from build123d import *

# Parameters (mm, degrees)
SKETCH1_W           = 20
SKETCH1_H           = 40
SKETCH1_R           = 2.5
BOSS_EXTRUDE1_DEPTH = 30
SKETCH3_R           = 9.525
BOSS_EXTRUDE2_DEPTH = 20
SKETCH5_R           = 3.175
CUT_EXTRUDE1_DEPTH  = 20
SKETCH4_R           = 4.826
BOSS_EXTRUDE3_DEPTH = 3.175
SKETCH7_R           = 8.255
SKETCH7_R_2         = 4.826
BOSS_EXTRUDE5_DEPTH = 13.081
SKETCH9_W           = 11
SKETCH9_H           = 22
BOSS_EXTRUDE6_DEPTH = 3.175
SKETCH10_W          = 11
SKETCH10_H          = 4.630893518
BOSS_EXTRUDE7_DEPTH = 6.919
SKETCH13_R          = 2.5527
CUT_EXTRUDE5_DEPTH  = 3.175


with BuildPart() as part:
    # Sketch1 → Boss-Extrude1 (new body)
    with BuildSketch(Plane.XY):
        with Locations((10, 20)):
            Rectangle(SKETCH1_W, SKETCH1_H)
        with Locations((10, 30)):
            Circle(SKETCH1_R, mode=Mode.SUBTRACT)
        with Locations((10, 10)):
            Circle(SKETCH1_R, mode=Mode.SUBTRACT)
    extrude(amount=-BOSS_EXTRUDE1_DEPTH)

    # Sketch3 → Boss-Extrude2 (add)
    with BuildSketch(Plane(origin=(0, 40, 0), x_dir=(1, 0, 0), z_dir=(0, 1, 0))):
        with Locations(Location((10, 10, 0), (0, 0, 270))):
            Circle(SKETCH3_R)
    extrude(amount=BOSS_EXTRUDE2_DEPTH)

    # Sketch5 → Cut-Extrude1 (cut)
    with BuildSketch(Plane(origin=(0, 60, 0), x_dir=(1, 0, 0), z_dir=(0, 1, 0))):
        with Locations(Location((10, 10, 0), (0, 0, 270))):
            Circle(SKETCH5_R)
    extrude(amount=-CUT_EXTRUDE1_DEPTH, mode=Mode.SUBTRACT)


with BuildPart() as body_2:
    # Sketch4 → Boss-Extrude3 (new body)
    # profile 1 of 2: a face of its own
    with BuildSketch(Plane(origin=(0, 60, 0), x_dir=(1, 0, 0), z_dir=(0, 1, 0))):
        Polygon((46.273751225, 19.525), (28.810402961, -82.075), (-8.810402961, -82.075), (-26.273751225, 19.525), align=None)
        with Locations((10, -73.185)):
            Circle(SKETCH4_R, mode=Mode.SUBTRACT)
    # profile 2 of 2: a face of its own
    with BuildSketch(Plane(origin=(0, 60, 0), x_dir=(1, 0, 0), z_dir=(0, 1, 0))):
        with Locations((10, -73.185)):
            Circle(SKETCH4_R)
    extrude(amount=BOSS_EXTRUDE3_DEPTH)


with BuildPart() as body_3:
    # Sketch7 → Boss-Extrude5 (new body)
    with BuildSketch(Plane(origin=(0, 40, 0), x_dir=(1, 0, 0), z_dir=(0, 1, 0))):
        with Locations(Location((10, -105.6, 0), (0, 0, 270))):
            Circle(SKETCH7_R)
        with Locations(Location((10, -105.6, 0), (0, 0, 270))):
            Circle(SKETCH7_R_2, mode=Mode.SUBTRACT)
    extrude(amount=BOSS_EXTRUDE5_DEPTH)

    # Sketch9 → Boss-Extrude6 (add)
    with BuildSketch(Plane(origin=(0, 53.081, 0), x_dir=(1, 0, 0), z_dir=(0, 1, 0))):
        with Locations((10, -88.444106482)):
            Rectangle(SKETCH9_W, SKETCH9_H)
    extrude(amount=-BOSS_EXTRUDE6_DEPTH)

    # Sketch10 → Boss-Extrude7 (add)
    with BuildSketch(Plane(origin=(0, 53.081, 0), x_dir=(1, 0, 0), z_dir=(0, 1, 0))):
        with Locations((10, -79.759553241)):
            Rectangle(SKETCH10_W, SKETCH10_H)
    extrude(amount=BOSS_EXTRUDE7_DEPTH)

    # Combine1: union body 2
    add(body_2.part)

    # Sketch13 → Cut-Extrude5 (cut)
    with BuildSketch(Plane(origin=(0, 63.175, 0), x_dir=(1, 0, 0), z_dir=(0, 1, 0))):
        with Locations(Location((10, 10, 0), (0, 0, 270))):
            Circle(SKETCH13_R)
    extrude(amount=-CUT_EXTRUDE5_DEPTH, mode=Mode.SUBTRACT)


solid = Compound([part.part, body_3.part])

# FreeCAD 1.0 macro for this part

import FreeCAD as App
import Part
import Sketcher

V = App.Vector
Q = App.Units.Quantity

doc = App.newDocument("Part")
body = doc.addObject("PartDesign::Body", "Body")

sketch1 = doc.addObject("Sketcher::SketchObject", "Sketch")
body.addObject(sketch1)
sketch1.AttachmentSupport = (doc.XY_Plane, [""])
sketch1.MapMode = "FlatFace"
sketch1.addGeometry(Part.LineSegment(V(0, 40, 0), V(0, 0, 0)), False)
sketch1.addGeometry(Part.LineSegment(V(0, 0, 0), V(20, 0, 0)), False)
sketch1.addGeometry(Part.LineSegment(V(20, 0, 0), V(20, 40, 0)), False)
sketch1.addGeometry(Part.LineSegment(V(20, 40, 0), V(0, 40, 0)), False)
sketch1.addGeometry(Part.Circle(V(10, 10, 0), V(0, 0, 1), 2.5), False)
sketch1.addGeometry(Part.Circle(V(10, 30, 0), V(0, 0, 1), 2.5), False)
sketch1.addConstraint(Sketcher.Constraint("Coincident", 0, 2, 1, 1))
sketch1.addConstraint(Sketcher.Constraint("Coincident", 1, 2, 2, 1))
sketch1.addConstraint(Sketcher.Constraint("Coincident", 2, 2, 3, 1))
sketch1.addConstraint(Sketcher.Constraint("Coincident", 3, 2, 0, 1))
sketch1.addConstraint(Sketcher.Constraint("Vertical", 0))
sketch1.addConstraint(Sketcher.Constraint("Horizontal", 1))
sketch1.addConstraint(Sketcher.Constraint("Vertical", 2))
sketch1.addConstraint(Sketcher.Constraint("Horizontal", 3))
sketch1.addConstraint(Sketcher.Constraint("Coincident", 0, 2, -1, 1))
sketch1.addConstraint(Sketcher.Constraint("Equal", 4, 5))
sketch1.addConstraint(Sketcher.Constraint("Vertical", 4, 3, 5, 3))
sketch1.addConstraint(Sketcher.Constraint("Diameter", 4, 5.0))
sketch1.addConstraint(Sketcher.Constraint("DistanceX", 1, 1, 1, 2, 20.0))
sketch1.addConstraint(Sketcher.Constraint("DistanceY", 0, 2, 0, 1, 40.0))
sketch1.addConstraint(Sketcher.Constraint("DistanceX", -1, 1, 4, 3, 10.0))
sketch1.addConstraint(Sketcher.Constraint("DistanceY", -1, 1, 4, 3, 10.0))
sketch1.addConstraint(Sketcher.Constraint("DistanceY", -1, 1, 5, 3, 30.0))
pad1 = doc.addObject("PartDesign::Pad", "Pad")
body.addObject(pad1)
pad1.Profile = sketch1
pad1.Length = 30
pad1.Reversed = True

sketch2 = doc.addObject("Sketcher::SketchObject", "Sketch001")
body.addObject(sketch2)
sketch2.AttachmentSupport = (doc.XZ_Plane, [""])
sketch2.MapMode = "FlatFace"
sketch2.AttachmentOffset = App.Placement(V(0, 0, -40), App.Rotation())
sketch2.addGeometry(Part.Circle(V(10, -10, 0), V(0, 0, 1), 10), False)
sketch2.addConstraint(Sketcher.Constraint("Diameter", 0, Q("0.75 in")))
sketch2.addConstraint(Sketcher.Constraint("DistanceX", -1, 1, 0, 3, 10.0))
sketch2.addConstraint(Sketcher.Constraint("DistanceY", 0, 3, -1, 1, 10.0))
pad2 = doc.addObject("PartDesign::Pad", "Pad001")
body.addObject(pad2)
pad2.Profile = sketch2
pad2.Length = 20
pad2.Reversed = True

sketch3 = doc.addObject("Sketcher::SketchObject", "Sketch002")
body.addObject(sketch3)
sketch3.AttachmentSupport = (doc.XZ_Plane, [""])
sketch3.MapMode = "FlatFace"
sketch3.AttachmentOffset = App.Placement(V(0, 0, -60), App.Rotation())
sketch3.addGeometry(Part.Circle(V(10, -10, 0), V(0, 0, 1), 3.2), False)
sketch3.addConstraint(Sketcher.Constraint("Diameter", 0, Q("0.25 in")))
sketch3.addConstraint(Sketcher.Constraint("DistanceX", -1, 1, 0, 3, 10.0))
sketch3.addConstraint(Sketcher.Constraint("DistanceY", 0, 3, -1, 1, 10.0))
pocket1 = doc.addObject("PartDesign::Pocket", "Pocket")
body.addObject(pocket1)
pocket1.Profile = sketch3
pocket1.Length = 20
pocket1.Reversed = True
body2 = doc.addObject("PartDesign::Body", "Body001")

sketch4 = doc.addObject("Sketcher::SketchObject", "Sketch003")
body2.addObject(sketch4)
sketch4.AttachmentSupport = (doc.getObject("XZ_Plane001"), [""])
sketch4.MapMode = "FlatFace"
sketch4.AttachmentOffset = App.Placement(V(0, 0, -60), App.Rotation())
sketch4.addGeometry(Part.LineSegment(V(29, 82, 0), V(46, -20, 0)), False)
sketch4.addGeometry(Part.LineSegment(V(46, -20, 0), V(-26, -20, 0)), False)
sketch4.addGeometry(Part.LineSegment(V(-26, -20, 0), V(-9, 82, 0)), False)
sketch4.addGeometry(Part.LineSegment(V(-9, 82, 0), V(29, 82, 0)), False)
sketch4.addConstraint(Sketcher.Constraint("Coincident", 0, 2, 1, 1))
sketch4.addConstraint(Sketcher.Constraint("Coincident", 1, 2, 2, 1))
sketch4.addConstraint(Sketcher.Constraint("Coincident", 2, 2, 3, 1))
sketch4.addConstraint(Sketcher.Constraint("Coincident", 3, 2, 0, 1))
sketch4.addConstraint(Sketcher.Constraint("Horizontal", 1))
sketch4.addConstraint(Sketcher.Constraint("Horizontal", 3))
sketch4.addConstraint(Sketcher.Constraint("Equal", 0, 2))
sketch4.addConstraint(Sketcher.Constraint("DistanceY", 1, 2, 2, 2, Q("4 in")))
sketch4.addConstraint(Sketcher.Constraint("DistanceY", 0, 2, -1, 1, 19.525))
sketch4.addConstraint(Sketcher.Constraint("DistanceX", 1, 2, 1, 1, 72.547502))
sketch4.addConstraint(Sketcher.Constraint("DistanceX", 3, 1, 3, 2, 37.620806))
sketch4.addConstraint(Sketcher.Constraint("DistanceX", -1, 1, 0, 2, 46.273751))
pad3 = doc.addObject("PartDesign::Pad", "Pad002")
body2.addObject(pad3)
pad3.Profile = sketch4
pad3.Length = Q("0.125 in")
pad3.Reversed = True
body3 = doc.addObject("PartDesign::Body", "Body002")

sketch5 = doc.addObject("Sketcher::SketchObject", "Sketch004")
body3.addObject(sketch5)
sketch5.AttachmentSupport = (doc.getObject("XZ_Plane002"), [""])
sketch5.MapMode = "FlatFace"
sketch5.AttachmentOffset = App.Placement(V(0, 0, -40), App.Rotation())
sketch5.addGeometry(Part.Circle(V(10, 105.6, 0), V(0, 0, 1), 8.3), False)
sketch5.addGeometry(Part.Circle(V(10, 105.6, 0), V(0, 0, 1), 4.8), False)
sketch5.addConstraint(Sketcher.Constraint("Coincident", 1, 3, 0, 3))
sketch5.addConstraint(Sketcher.Constraint("Diameter", 0, Q("0.65 in")))
sketch5.addConstraint(Sketcher.Constraint("Diameter", 1, Q("0.38 in")))
sketch5.addConstraint(Sketcher.Constraint("DistanceX", -1, 1, 0, 3, 10.0))
sketch5.addConstraint(Sketcher.Constraint("DistanceY", -1, 1, 0, 3, 105.6))
pad4 = doc.addObject("PartDesign::Pad", "Pad003")
body3.addObject(pad4)
pad4.Profile = sketch5
pad4.Length = Q("0.515 in")
pad4.Reversed = True

sketch6 = doc.addObject("Sketcher::SketchObject", "Sketch005")
body3.addObject(sketch6)
sketch6.AttachmentSupport = (doc.getObject("XZ_Plane002"), [""])
sketch6.MapMode = "FlatFace"
sketch6.AttachmentOffset = App.Placement(V(0, 0, -53.081), App.Rotation())
sketch6.addGeometry(Part.LineSegment(V(4, 77, 0), V(4, 99, 0)), False)
sketch6.addGeometry(Part.LineSegment(V(4, 99, 0), V(16, 99, 0)), False)
sketch6.addGeometry(Part.LineSegment(V(16, 99, 0), V(16, 77, 0)), False)
sketch6.addGeometry(Part.LineSegment(V(16, 77, 0), V(4, 77, 0)), False)
sketch6.addConstraint(Sketcher.Constraint("Coincident", 0, 2, 1, 1))
sketch6.addConstraint(Sketcher.Constraint("Coincident", 1, 2, 2, 1))
sketch6.addConstraint(Sketcher.Constraint("Coincident", 2, 2, 3, 1))
sketch6.addConstraint(Sketcher.Constraint("Coincident", 3, 2, 0, 1))
sketch6.addConstraint(Sketcher.Constraint("Vertical", 0))
sketch6.addConstraint(Sketcher.Constraint("Horizontal", 1))
sketch6.addConstraint(Sketcher.Constraint("Vertical", 2))
sketch6.addConstraint(Sketcher.Constraint("Horizontal", 3))
sketch6.addConstraint(Sketcher.Constraint("DistanceX", 1, 1, 1, 2, 11.0))
sketch6.addConstraint(Sketcher.Constraint("DistanceY", 0, 1, 0, 2, 22.0))
sketch6.addConstraint(Sketcher.Constraint("DistanceX", -1, 1, 0, 2, 4.5))
sketch6.addConstraint(Sketcher.Constraint("DistanceY", -1, 1, 0, 2, 99.444106))
pad5 = doc.addObject("PartDesign::Pad", "Pad004")
body3.addObject(pad5)
pad5.Profile = sketch6
pad5.Length = Q("0.125 in")

sketch7 = doc.addObject("Sketcher::SketchObject", "Sketch006")
body3.addObject(sketch7)
sketch7.AttachmentSupport = (doc.getObject("XZ_Plane002"), [""])
sketch7.MapMode = "FlatFace"
sketch7.AttachmentOffset = App.Placement(V(0, 0, -53.081), App.Rotation())
sketch7.addGeometry(Part.LineSegment(V(4.5, 77.4, 0), V(4.5, 82.1, 0)), False)
sketch7.addGeometry(Part.LineSegment(V(4.5, 82.1, 0), V(15.5, 82.1, 0)), False)
sketch7.addGeometry(Part.LineSegment(V(15.5, 82.1, 0), V(15.5, 77.4, 0)), False)
sketch7.addGeometry(Part.LineSegment(V(15.5, 77.4, 0), V(4.5, 77.4, 0)), False)
sketch7.addConstraint(Sketcher.Constraint("Coincident", 0, 2, 1, 1))
sketch7.addConstraint(Sketcher.Constraint("Coincident", 1, 2, 2, 1))
sketch7.addConstraint(Sketcher.Constraint("Coincident", 2, 2, 3, 1))
sketch7.addConstraint(Sketcher.Constraint("Coincident", 3, 2, 0, 1))
sketch7.addConstraint(Sketcher.Constraint("Vertical", 0))
sketch7.addConstraint(Sketcher.Constraint("Horizontal", 1))
sketch7.addConstraint(Sketcher.Constraint("Vertical", 2))
sketch7.addConstraint(Sketcher.Constraint("Horizontal", 3))
sketch7.addConstraint(Sketcher.Constraint("DistanceX", 1, 1, 1, 2, 11.0))
sketch7.addConstraint(Sketcher.Constraint("DistanceX", -1, 1, 0, 2, 4.5))
sketch7.addConstraint(Sketcher.Constraint("DistanceY", -1, 1, 0, 2, 82.075))
sketch7.addConstraint(Sketcher.Constraint("DistanceY", 0, 1, 0, 2, 4.630894))
pad6 = doc.addObject("PartDesign::Pad", "Pad005")
body3.addObject(pad6)
pad6.Profile = sketch7
pad6.Length = 6.919
pad6.Reversed = True
doc.recompute()

boolean = doc.addObject("PartDesign::Boolean", "Boolean")
body3.addObject(boolean)
boolean.Type = "Fuse"
boolean.addObjects([body2])

sketch8 = doc.addObject("Sketcher::SketchObject", "Sketch007")
body3.addObject(sketch8)
sketch8.AttachmentSupport = (doc.getObject("XZ_Plane002"), [""])
sketch8.MapMode = "FlatFace"
sketch8.AttachmentOffset = App.Placement(V(0, 0, -63.175), App.Rotation())
sketch8.addGeometry(Part.Circle(V(10, -10, 0), V(0, 0, 1), 2.6), False)
sketch8.addConstraint(Sketcher.Constraint("Diameter", 0, Q("0.201 in")))
sketch8.addConstraint(Sketcher.Constraint("DistanceX", -1, 1, 0, 3, 10.0))
sketch8.addConstraint(Sketcher.Constraint("DistanceY", 0, 3, -1, 1, 10.0))
pocket2 = doc.addObject("PartDesign::Pocket", "Pocket001")
body3.addObject(pocket2)
pocket2.Profile = sketch8
pocket2.Length = Q("0.125 in")
pocket2.Reversed = True

doc.recompute()
